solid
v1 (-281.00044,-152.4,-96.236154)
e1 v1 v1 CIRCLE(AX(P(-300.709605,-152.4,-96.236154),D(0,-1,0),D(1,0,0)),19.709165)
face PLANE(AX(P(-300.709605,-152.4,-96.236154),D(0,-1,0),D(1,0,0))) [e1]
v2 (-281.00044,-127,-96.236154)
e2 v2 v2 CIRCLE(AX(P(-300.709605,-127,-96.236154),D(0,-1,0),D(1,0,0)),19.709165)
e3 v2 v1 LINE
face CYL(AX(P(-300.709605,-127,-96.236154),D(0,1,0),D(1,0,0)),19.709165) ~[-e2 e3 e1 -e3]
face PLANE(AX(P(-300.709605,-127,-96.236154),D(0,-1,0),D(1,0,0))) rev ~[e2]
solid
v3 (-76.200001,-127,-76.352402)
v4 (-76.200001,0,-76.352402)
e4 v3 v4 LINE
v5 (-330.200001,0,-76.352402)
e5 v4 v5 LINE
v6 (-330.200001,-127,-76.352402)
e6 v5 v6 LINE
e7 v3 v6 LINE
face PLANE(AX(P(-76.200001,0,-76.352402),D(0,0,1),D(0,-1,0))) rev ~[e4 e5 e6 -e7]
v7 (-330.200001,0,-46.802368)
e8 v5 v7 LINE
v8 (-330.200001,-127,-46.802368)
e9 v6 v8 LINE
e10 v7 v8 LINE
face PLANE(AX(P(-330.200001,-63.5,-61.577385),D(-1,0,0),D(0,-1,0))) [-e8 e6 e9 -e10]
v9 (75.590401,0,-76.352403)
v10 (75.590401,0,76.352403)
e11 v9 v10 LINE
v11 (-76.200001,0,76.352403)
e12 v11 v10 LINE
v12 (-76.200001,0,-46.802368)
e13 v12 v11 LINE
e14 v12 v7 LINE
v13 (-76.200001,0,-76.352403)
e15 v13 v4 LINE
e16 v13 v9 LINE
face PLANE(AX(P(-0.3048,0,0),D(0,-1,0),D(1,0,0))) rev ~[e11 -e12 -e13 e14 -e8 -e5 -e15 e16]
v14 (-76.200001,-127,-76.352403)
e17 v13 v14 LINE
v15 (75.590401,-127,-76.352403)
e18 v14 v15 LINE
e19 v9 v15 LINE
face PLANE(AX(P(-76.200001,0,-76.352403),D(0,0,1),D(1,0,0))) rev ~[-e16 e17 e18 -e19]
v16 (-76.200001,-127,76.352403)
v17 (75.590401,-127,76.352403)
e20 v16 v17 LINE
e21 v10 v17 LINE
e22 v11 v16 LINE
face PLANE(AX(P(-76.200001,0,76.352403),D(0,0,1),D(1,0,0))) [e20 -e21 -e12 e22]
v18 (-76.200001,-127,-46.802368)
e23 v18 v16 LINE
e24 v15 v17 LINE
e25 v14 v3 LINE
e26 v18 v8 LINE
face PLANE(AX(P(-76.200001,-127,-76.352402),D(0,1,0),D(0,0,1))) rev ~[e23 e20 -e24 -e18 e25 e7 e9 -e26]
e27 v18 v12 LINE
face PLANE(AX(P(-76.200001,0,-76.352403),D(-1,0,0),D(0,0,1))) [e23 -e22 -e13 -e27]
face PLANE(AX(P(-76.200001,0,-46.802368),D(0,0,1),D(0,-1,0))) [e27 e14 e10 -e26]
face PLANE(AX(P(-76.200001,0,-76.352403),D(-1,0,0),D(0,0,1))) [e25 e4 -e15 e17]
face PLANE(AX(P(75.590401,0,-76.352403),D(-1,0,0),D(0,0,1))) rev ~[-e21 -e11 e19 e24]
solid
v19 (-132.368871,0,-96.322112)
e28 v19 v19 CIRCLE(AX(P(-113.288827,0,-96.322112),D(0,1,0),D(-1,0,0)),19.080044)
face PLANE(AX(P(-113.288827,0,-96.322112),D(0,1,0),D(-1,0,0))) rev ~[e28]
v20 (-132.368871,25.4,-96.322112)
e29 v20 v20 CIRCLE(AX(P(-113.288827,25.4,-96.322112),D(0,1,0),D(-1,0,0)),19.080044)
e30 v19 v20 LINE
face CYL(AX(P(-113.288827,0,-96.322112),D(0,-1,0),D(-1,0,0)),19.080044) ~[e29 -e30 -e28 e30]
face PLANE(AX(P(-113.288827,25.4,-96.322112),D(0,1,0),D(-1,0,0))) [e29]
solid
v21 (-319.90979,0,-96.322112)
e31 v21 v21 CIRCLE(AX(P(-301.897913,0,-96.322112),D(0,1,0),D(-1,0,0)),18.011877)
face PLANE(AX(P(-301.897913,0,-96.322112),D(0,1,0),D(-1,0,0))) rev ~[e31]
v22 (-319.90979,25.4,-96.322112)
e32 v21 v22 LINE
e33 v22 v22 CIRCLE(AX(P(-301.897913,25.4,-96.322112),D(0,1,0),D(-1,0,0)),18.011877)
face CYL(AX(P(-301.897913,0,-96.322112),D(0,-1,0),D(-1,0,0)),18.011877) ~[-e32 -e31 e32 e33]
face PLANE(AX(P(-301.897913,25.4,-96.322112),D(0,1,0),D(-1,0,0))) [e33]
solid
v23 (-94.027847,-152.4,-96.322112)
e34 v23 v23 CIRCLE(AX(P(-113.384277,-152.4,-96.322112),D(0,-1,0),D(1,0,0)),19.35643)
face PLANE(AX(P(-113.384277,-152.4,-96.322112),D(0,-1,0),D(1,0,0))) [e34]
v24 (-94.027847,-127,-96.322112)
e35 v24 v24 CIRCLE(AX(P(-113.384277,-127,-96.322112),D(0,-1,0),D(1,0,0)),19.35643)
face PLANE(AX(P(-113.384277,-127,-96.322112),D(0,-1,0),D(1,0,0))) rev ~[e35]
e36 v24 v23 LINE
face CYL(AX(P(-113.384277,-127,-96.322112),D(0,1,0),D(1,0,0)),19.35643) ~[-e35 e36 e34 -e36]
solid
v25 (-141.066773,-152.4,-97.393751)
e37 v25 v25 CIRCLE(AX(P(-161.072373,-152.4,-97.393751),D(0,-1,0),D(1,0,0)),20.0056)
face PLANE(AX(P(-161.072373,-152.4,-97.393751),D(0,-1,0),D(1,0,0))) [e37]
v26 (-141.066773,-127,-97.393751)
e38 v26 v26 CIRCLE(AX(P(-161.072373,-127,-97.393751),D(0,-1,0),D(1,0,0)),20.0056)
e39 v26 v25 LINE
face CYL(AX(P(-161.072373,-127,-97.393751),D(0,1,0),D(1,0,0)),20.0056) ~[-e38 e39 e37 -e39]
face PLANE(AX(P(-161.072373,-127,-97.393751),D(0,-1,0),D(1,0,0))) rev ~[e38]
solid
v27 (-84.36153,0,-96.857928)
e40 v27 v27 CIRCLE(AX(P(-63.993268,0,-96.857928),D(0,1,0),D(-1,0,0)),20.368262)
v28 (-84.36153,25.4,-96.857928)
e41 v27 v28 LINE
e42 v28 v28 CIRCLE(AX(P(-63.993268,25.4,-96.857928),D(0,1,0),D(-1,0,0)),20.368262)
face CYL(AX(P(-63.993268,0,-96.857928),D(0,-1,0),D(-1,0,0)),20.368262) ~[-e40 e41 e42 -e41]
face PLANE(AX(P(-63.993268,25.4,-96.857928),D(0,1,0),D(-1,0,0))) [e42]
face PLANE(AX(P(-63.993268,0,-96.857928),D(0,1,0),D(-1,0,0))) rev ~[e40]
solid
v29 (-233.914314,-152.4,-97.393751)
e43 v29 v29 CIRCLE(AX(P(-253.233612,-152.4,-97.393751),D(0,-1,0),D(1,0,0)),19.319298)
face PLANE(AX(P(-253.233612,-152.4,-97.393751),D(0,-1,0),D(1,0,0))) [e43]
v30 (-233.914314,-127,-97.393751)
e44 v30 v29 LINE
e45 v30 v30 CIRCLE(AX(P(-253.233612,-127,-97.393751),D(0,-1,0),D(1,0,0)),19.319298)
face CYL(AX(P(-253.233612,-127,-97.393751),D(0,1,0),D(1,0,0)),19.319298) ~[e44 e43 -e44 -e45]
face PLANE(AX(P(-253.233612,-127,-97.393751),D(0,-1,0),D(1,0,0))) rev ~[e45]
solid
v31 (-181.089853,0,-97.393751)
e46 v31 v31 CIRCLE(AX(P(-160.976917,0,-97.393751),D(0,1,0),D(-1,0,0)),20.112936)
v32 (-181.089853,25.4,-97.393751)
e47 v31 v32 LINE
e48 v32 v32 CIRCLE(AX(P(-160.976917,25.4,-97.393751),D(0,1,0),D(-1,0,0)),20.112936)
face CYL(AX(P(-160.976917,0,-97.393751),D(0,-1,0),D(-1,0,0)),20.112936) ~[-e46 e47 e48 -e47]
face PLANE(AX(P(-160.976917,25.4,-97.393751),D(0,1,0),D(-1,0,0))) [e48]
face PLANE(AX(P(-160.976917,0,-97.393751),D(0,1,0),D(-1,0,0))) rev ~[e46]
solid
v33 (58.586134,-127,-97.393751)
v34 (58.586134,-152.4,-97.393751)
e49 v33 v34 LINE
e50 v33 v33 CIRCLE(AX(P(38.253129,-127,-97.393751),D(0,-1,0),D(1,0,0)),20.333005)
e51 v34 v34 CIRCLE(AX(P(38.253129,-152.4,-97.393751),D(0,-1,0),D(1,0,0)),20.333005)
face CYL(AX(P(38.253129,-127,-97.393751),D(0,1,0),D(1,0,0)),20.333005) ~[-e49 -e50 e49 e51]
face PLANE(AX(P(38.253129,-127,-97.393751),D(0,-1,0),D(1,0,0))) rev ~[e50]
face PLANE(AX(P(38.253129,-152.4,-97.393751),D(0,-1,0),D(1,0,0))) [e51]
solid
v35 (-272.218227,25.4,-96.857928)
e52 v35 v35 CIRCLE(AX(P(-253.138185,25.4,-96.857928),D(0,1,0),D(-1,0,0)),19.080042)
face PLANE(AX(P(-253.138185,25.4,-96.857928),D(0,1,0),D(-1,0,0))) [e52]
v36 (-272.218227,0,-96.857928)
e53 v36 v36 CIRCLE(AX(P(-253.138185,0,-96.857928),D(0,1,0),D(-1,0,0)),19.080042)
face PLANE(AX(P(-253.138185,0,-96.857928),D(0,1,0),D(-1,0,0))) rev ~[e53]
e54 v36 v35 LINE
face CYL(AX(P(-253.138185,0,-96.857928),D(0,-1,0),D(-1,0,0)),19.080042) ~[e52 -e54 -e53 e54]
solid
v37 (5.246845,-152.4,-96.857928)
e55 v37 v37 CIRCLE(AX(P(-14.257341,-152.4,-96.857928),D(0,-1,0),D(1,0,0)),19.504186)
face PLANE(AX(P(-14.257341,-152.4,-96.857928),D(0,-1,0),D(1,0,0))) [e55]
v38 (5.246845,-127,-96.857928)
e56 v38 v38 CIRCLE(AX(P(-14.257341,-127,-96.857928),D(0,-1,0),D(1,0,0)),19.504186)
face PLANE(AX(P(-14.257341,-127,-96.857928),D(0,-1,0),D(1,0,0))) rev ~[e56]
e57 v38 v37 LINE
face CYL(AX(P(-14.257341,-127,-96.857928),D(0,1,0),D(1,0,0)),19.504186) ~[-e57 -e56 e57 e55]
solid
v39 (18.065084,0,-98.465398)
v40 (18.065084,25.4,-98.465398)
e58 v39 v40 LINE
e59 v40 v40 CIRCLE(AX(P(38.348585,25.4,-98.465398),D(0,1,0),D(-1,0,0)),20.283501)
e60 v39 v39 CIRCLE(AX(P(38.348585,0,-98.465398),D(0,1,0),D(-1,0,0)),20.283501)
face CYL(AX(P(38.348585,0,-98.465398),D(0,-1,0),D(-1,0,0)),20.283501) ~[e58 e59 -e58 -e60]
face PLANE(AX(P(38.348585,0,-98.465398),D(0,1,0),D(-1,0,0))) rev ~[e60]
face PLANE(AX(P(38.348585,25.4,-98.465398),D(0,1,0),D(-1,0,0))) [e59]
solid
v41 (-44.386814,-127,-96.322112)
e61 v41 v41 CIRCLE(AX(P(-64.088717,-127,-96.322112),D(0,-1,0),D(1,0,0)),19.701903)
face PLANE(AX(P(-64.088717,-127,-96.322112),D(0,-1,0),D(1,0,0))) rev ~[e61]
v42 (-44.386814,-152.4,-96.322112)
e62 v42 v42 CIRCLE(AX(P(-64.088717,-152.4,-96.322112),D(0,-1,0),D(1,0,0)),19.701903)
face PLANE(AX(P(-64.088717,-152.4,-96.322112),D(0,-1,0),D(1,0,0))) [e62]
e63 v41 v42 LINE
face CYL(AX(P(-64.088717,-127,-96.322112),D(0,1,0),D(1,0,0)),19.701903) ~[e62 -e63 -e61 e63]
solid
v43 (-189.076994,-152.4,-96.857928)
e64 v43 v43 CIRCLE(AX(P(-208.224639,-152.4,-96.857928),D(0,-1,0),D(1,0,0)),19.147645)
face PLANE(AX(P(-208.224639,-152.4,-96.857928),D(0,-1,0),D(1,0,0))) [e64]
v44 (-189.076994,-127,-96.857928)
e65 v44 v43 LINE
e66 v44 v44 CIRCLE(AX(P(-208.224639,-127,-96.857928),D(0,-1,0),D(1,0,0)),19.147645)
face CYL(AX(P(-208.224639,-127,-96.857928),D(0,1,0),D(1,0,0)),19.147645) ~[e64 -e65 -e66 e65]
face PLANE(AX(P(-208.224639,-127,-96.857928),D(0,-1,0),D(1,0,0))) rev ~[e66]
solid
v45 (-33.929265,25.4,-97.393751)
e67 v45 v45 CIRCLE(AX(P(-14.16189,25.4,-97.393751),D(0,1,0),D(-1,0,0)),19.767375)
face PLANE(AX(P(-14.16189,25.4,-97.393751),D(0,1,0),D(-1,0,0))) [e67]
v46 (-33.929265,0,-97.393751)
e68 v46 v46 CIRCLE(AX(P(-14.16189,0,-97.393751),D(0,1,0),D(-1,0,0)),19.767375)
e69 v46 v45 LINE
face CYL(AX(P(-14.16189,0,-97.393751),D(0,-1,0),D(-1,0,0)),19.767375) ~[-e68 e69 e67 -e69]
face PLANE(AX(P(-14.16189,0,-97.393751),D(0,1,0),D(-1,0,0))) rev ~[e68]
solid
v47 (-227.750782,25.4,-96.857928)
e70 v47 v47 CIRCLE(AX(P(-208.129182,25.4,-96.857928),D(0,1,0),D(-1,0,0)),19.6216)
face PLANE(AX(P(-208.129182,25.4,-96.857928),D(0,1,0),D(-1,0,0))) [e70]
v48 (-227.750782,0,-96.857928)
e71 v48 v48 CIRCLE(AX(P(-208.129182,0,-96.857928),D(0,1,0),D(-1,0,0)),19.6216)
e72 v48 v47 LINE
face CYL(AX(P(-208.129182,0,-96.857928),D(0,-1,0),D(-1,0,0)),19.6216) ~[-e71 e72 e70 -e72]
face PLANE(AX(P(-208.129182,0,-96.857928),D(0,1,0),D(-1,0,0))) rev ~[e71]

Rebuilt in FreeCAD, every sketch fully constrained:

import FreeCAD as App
import Part
import Sketcher
from FreeCAD import Vector
Q = App.Units.Quantity

doc = App.newDocument("Part")
body = doc.addObject("PartDesign::Body", "Body")

sketch1 = body.newObject("Sketcher::SketchObject", "Sketch")
sketch1.AttachmentSupport = (doc.getObject("XZ_Plane"), [""])
sketch1.MapMode = "FlatFace"
sketch1.addGeometry([
    Part.LineSegment(Vector(-76, 76, 0), Vector(-76, -76, 0)),
    Part.LineSegment(Vector(-76, -76, 0), Vector(76, -76, 0)),
    Part.LineSegment(Vector(76, -76, 0), Vector(76, 76, 0)),
    Part.LineSegment(Vector(76, 76, 0), Vector(-76, 76, 0)),
], False)
sketch1.addConstraint([
    Sketcher.Constraint("Coincident", 0, 2, 1, 1),
    Sketcher.Constraint("Coincident", 1, 2, 2, 1),
    Sketcher.Constraint("Coincident", 2, 2, 3, 1),
    Sketcher.Constraint("Coincident", 3, 2, 0, 1),
    Sketcher.Constraint("Vertical", 0),
    Sketcher.Constraint("Horizontal", 1),
    Sketcher.Constraint("Vertical", 2),
    Sketcher.Constraint("Horizontal", 3),
    Sketcher.Constraint("DistanceX", 0, 2, -1, 1, Q("3.0000001 in")),
    Sketcher.Constraint("DistanceX", 1, 1, 1, 2, Q("5.9760001 in")),
    Sketcher.Constraint("DistanceY", 0, 2, -1, 1, Q("3.0060001 in")),
    Sketcher.Constraint("DistanceY", -1, 1, 2, 2, Q("3.0060001 in")),
])
pad1 = body.newObject("PartDesign::Pad", "Pad")
pad1.Profile = sketch1
pad1.Length = Q("5 in")

sketch2 = body.newObject("Sketcher::SketchObject", "Sketch001")
sketch2.AttachmentSupport = (doc.getObject("YZ_Plane"), [""])
sketch2.MapMode = "FlatFace"
sketch2.AttachmentOffset = App.Placement(Vector(0, 0, -3 * 25.4), App.Rotation())
sketch2.addGeometry([
    Part.LineSegment(Vector(0, -47, 0), Vector(0, -76, 0)),
    Part.LineSegment(Vector(0, -76, 0), Vector(-127, -76, 0)),
    Part.LineSegment(Vector(-127, -76, 0), Vector(-127, -47, 0)),
    Part.LineSegment(Vector(-127, -47, 0), Vector(0, -47, 0)),
], False)
sketch2.addConstraint([
    Sketcher.Constraint("Coincident", 0, 2, 1, 1),
    Sketcher.Constraint("Coincident", 1, 2, 2, 1),
    Sketcher.Constraint("Coincident", 2, 2, 3, 1),
    Sketcher.Constraint("Coincident", 3, 2, 0, 1),
    Sketcher.Constraint("Vertical", 0),
    Sketcher.Constraint("Horizontal", 1),
    Sketcher.Constraint("Vertical", 2),
    Sketcher.Constraint("Horizontal", 3),
    Sketcher.Constraint("PointOnObject", 0, 2, -2),
    Sketcher.Constraint("DistanceX", 1, 2, 1, 1, Q("5 in")),
    Sketcher.Constraint("DistanceY", 0, 2, -1, 1, Q("3.0060001 in")),
    Sketcher.Constraint("DistanceY", 0, 2, 0, 1, 29.550035),
])
pad2 = body.newObject("PartDesign::Pad", "Pad001")
pad2.Profile = sketch2
pad2.Length = Q("10 in")
pad2.Reversed = True
body2 = doc.addObject("PartDesign::Body", "Body001")

sketch3 = body2.newObject("Sketcher::SketchObject", "Sketch002")
sketch3.AttachmentSupport = (doc.getObject("XZ_Plane001"), [""])
sketch3.MapMode = "FlatFace"
sketch3.AttachmentOffset = App.Placement(Vector(0, 0, 5 * 25.4), App.Rotation())
sketch3.addGeometry(Part.Circle(Vector(-301, -96, 0), Vector(0, 0, 1), 20), False)
sketch3.addConstraint([
    Sketcher.Constraint("Diameter", 0, 39.41833),
    Sketcher.Constraint("DistanceX", 0, 3, -1, 1, 300.709605),
    Sketcher.Constraint("DistanceY", 0, 3, -1, 1, 96.236154),
])
pad3 = body2.newObject("PartDesign::Pad", "Pad002")
pad3.Profile = sketch3
pad3.Length = Q("1 in")
body3 = doc.addObject("PartDesign::Body", "Body002")
body3.AllowCompound = True

sketch4 = body3.newObject("Sketcher::SketchObject", "Sketch003")
sketch4.AttachmentSupport = (doc.getObject("XZ_Plane002"), [""])
sketch4.MapMode = "FlatFace"
sketch4.AttachmentOffset = App.Placement(Vector(0, 0, 5 * 25.4), App.Rotation())
sketch4.addGeometry([
    Part.Circle(Vector(-253, -97, 0), Vector(0, 0, 1), 19),
    Part.Circle(Vector(-208, -97, 0), Vector(0, 0, 1), 19),
    Part.Circle(Vector(-161, -97, 0), Vector(0, 0, 1), 20),
    Part.Circle(Vector(-113, -96, 0), Vector(0, 0, 1), 19),
    Part.Circle(Vector(-64, -96, 0), Vector(0, 0, 1), 20),
    Part.Circle(Vector(-14, -97, 0), Vector(0, 0, 1), 20),
    Part.Circle(Vector(38, -97, 0), Vector(0, 0, 1), 20),
], False)
sketch4.addConstraint([
    Sketcher.Constraint("Horizontal", 0, 3, 2, 3),
    Sketcher.Constraint("Horizontal", 3, 3, 4, 3),
    Sketcher.Constraint("Horizontal", 1, 3, 5, 3),
    Sketcher.Constraint("Horizontal", 2, 3, 6, 3),
    Sketcher.Constraint("Diameter", 2, 40.0112),
    Sketcher.Constraint("Diameter", 1, 38.29529),
    Sketcher.Constraint("Diameter", 3, 38.71286),
    Sketcher.Constraint("Diameter", 6, 40.66601),
    Sketcher.Constraint("Diameter", 0, 38.638596),
    Sketcher.Constraint("Diameter", 4, 39.403806),
    Sketcher.Constraint("Diameter", 5, 39.008372),
    Sketcher.Constraint("DistanceX", 1, 3, 5, 3, 193.967298),
    Sketcher.Constraint("DistanceX", 2, 3, 6, 3, 199.325502),
    Sketcher.Constraint("DistanceX", 0, 3, -1, 1, 253.233612),
    Sketcher.Constraint("DistanceY", 0, 3, -1, 1, 97.393751),
    Sketcher.Constraint("DistanceX", 1, 3, -1, 1, 208.224639),
    Sketcher.Constraint("DistanceY", 1, 3, -1, 1, 96.857928),
    Sketcher.Constraint("DistanceX", -1, 1, 6, 3, 38.253129),
    Sketcher.Constraint("DistanceY", 2, 3, 3, 3, 1.071639),
    Sketcher.Constraint("DistanceX", 1, 3, 3, 3, 94.840362),
    Sketcher.Constraint("DistanceX", 3, 3, 4, 3, 49.29556),
])
pad4 = body3.newObject("PartDesign::Pad", "Pad003")
pad4.Profile = sketch4
pad4.Length = Q("1 in")
body4 = doc.addObject("PartDesign::Body", "Body003")
body4.AllowCompound = True

sketch5 = body4.newObject("Sketcher::SketchObject", "Sketch004")
sketch5.AttachmentSupport = (doc.getObject("XZ_Plane003"), [""])
sketch5.MapMode = "FlatFace"
sketch5.addGeometry([
    Part.Circle(Vector(38, -98, 0), Vector(0, 0, 1), 20),
    Part.Circle(Vector(-14, -97, 0), Vector(0, 0, 1), 20),
    Part.Circle(Vector(-64, -97, 0), Vector(0, 0, 1), 20),
    Part.Circle(Vector(-113, -96, 0), Vector(0, 0, 1), 19),
    Part.Circle(Vector(-161, -97, 0), Vector(0, 0, 1), 20),
    Part.Circle(Vector(-208, -97, 0), Vector(0, 0, 1), 20),
    Part.Circle(Vector(-253, -97, 0), Vector(0, 0, 1), 19),
    Part.Circle(Vector(-302, -96, 0), Vector(0, 0, 1), 18),
], False)
sketch5.addConstraint([
    Sketcher.Constraint("Horizontal", 1, 3, 4, 3),
    Sketcher.Constraint("Horizontal", 2, 3, 5, 3),
    Sketcher.Constraint("Horizontal", 5, 3, 6, 3),
    Sketcher.Constraint("Horizontal", 3, 3, 7, 3),
    Sketcher.Constraint("Diameter", 2, Q("1.6038002 in")),
    Sketcher.Constraint("Diameter", 5, 39.2432),
    Sketcher.Constraint("Diameter", 1, 39.53475),
    Sketcher.Constraint("Diameter", 3, 38.160088),
    Sketcher.Constraint("Diameter", 0, 40.567002),
    Sketcher.Constraint("Diameter", 4, 40.225872),
    Sketcher.Constraint("Diameter", 6, 38.160084),
    Sketcher.Constraint("Diameter", 7, 36.023754),
    Sketcher.Constraint("DistanceX", 4, 3, 0, 3, 199.325502),
    Sketcher.Constraint("DistanceX", 1, 3, -1, 1, 14.16189),
    Sketcher.Constraint("DistanceY", 1, 3, -1, 1, 97.393751),
    Sketcher.Constraint("DistanceY", 2, 3, -1, 1, 96.857928),
    Sketcher.Constraint("DistanceX", 5, 3, -1, 1, 208.129182),
    Sketcher.Constraint("DistanceY", 0, 3, 2, 3, 1.60747),
    Sketcher.Constraint("DistanceX", 3, 3, 2, 3, 49.295559),
    Sketcher.Constraint("DistanceY", 1, 3, 3, 3, 1.071639),
    Sketcher.Constraint("DistanceX", 3, 3, 0, 3, 151.637412),
    Sketcher.Constraint("DistanceX", 6, 3, 4, 3, 92.161268),
    Sketcher.Constraint("DistanceX", 7, 3, 6, 3, 48.759728),
    Sketcher.Constraint("DistanceX", 7, 3, 5, 3, 93.768731),
])
pad5 = body4.newObject("PartDesign::Pad", "Pad004")
pad5.Profile = sketch5
pad5.Length = Q("1 in")
pad5.Reversed = True

doc.recompute()
